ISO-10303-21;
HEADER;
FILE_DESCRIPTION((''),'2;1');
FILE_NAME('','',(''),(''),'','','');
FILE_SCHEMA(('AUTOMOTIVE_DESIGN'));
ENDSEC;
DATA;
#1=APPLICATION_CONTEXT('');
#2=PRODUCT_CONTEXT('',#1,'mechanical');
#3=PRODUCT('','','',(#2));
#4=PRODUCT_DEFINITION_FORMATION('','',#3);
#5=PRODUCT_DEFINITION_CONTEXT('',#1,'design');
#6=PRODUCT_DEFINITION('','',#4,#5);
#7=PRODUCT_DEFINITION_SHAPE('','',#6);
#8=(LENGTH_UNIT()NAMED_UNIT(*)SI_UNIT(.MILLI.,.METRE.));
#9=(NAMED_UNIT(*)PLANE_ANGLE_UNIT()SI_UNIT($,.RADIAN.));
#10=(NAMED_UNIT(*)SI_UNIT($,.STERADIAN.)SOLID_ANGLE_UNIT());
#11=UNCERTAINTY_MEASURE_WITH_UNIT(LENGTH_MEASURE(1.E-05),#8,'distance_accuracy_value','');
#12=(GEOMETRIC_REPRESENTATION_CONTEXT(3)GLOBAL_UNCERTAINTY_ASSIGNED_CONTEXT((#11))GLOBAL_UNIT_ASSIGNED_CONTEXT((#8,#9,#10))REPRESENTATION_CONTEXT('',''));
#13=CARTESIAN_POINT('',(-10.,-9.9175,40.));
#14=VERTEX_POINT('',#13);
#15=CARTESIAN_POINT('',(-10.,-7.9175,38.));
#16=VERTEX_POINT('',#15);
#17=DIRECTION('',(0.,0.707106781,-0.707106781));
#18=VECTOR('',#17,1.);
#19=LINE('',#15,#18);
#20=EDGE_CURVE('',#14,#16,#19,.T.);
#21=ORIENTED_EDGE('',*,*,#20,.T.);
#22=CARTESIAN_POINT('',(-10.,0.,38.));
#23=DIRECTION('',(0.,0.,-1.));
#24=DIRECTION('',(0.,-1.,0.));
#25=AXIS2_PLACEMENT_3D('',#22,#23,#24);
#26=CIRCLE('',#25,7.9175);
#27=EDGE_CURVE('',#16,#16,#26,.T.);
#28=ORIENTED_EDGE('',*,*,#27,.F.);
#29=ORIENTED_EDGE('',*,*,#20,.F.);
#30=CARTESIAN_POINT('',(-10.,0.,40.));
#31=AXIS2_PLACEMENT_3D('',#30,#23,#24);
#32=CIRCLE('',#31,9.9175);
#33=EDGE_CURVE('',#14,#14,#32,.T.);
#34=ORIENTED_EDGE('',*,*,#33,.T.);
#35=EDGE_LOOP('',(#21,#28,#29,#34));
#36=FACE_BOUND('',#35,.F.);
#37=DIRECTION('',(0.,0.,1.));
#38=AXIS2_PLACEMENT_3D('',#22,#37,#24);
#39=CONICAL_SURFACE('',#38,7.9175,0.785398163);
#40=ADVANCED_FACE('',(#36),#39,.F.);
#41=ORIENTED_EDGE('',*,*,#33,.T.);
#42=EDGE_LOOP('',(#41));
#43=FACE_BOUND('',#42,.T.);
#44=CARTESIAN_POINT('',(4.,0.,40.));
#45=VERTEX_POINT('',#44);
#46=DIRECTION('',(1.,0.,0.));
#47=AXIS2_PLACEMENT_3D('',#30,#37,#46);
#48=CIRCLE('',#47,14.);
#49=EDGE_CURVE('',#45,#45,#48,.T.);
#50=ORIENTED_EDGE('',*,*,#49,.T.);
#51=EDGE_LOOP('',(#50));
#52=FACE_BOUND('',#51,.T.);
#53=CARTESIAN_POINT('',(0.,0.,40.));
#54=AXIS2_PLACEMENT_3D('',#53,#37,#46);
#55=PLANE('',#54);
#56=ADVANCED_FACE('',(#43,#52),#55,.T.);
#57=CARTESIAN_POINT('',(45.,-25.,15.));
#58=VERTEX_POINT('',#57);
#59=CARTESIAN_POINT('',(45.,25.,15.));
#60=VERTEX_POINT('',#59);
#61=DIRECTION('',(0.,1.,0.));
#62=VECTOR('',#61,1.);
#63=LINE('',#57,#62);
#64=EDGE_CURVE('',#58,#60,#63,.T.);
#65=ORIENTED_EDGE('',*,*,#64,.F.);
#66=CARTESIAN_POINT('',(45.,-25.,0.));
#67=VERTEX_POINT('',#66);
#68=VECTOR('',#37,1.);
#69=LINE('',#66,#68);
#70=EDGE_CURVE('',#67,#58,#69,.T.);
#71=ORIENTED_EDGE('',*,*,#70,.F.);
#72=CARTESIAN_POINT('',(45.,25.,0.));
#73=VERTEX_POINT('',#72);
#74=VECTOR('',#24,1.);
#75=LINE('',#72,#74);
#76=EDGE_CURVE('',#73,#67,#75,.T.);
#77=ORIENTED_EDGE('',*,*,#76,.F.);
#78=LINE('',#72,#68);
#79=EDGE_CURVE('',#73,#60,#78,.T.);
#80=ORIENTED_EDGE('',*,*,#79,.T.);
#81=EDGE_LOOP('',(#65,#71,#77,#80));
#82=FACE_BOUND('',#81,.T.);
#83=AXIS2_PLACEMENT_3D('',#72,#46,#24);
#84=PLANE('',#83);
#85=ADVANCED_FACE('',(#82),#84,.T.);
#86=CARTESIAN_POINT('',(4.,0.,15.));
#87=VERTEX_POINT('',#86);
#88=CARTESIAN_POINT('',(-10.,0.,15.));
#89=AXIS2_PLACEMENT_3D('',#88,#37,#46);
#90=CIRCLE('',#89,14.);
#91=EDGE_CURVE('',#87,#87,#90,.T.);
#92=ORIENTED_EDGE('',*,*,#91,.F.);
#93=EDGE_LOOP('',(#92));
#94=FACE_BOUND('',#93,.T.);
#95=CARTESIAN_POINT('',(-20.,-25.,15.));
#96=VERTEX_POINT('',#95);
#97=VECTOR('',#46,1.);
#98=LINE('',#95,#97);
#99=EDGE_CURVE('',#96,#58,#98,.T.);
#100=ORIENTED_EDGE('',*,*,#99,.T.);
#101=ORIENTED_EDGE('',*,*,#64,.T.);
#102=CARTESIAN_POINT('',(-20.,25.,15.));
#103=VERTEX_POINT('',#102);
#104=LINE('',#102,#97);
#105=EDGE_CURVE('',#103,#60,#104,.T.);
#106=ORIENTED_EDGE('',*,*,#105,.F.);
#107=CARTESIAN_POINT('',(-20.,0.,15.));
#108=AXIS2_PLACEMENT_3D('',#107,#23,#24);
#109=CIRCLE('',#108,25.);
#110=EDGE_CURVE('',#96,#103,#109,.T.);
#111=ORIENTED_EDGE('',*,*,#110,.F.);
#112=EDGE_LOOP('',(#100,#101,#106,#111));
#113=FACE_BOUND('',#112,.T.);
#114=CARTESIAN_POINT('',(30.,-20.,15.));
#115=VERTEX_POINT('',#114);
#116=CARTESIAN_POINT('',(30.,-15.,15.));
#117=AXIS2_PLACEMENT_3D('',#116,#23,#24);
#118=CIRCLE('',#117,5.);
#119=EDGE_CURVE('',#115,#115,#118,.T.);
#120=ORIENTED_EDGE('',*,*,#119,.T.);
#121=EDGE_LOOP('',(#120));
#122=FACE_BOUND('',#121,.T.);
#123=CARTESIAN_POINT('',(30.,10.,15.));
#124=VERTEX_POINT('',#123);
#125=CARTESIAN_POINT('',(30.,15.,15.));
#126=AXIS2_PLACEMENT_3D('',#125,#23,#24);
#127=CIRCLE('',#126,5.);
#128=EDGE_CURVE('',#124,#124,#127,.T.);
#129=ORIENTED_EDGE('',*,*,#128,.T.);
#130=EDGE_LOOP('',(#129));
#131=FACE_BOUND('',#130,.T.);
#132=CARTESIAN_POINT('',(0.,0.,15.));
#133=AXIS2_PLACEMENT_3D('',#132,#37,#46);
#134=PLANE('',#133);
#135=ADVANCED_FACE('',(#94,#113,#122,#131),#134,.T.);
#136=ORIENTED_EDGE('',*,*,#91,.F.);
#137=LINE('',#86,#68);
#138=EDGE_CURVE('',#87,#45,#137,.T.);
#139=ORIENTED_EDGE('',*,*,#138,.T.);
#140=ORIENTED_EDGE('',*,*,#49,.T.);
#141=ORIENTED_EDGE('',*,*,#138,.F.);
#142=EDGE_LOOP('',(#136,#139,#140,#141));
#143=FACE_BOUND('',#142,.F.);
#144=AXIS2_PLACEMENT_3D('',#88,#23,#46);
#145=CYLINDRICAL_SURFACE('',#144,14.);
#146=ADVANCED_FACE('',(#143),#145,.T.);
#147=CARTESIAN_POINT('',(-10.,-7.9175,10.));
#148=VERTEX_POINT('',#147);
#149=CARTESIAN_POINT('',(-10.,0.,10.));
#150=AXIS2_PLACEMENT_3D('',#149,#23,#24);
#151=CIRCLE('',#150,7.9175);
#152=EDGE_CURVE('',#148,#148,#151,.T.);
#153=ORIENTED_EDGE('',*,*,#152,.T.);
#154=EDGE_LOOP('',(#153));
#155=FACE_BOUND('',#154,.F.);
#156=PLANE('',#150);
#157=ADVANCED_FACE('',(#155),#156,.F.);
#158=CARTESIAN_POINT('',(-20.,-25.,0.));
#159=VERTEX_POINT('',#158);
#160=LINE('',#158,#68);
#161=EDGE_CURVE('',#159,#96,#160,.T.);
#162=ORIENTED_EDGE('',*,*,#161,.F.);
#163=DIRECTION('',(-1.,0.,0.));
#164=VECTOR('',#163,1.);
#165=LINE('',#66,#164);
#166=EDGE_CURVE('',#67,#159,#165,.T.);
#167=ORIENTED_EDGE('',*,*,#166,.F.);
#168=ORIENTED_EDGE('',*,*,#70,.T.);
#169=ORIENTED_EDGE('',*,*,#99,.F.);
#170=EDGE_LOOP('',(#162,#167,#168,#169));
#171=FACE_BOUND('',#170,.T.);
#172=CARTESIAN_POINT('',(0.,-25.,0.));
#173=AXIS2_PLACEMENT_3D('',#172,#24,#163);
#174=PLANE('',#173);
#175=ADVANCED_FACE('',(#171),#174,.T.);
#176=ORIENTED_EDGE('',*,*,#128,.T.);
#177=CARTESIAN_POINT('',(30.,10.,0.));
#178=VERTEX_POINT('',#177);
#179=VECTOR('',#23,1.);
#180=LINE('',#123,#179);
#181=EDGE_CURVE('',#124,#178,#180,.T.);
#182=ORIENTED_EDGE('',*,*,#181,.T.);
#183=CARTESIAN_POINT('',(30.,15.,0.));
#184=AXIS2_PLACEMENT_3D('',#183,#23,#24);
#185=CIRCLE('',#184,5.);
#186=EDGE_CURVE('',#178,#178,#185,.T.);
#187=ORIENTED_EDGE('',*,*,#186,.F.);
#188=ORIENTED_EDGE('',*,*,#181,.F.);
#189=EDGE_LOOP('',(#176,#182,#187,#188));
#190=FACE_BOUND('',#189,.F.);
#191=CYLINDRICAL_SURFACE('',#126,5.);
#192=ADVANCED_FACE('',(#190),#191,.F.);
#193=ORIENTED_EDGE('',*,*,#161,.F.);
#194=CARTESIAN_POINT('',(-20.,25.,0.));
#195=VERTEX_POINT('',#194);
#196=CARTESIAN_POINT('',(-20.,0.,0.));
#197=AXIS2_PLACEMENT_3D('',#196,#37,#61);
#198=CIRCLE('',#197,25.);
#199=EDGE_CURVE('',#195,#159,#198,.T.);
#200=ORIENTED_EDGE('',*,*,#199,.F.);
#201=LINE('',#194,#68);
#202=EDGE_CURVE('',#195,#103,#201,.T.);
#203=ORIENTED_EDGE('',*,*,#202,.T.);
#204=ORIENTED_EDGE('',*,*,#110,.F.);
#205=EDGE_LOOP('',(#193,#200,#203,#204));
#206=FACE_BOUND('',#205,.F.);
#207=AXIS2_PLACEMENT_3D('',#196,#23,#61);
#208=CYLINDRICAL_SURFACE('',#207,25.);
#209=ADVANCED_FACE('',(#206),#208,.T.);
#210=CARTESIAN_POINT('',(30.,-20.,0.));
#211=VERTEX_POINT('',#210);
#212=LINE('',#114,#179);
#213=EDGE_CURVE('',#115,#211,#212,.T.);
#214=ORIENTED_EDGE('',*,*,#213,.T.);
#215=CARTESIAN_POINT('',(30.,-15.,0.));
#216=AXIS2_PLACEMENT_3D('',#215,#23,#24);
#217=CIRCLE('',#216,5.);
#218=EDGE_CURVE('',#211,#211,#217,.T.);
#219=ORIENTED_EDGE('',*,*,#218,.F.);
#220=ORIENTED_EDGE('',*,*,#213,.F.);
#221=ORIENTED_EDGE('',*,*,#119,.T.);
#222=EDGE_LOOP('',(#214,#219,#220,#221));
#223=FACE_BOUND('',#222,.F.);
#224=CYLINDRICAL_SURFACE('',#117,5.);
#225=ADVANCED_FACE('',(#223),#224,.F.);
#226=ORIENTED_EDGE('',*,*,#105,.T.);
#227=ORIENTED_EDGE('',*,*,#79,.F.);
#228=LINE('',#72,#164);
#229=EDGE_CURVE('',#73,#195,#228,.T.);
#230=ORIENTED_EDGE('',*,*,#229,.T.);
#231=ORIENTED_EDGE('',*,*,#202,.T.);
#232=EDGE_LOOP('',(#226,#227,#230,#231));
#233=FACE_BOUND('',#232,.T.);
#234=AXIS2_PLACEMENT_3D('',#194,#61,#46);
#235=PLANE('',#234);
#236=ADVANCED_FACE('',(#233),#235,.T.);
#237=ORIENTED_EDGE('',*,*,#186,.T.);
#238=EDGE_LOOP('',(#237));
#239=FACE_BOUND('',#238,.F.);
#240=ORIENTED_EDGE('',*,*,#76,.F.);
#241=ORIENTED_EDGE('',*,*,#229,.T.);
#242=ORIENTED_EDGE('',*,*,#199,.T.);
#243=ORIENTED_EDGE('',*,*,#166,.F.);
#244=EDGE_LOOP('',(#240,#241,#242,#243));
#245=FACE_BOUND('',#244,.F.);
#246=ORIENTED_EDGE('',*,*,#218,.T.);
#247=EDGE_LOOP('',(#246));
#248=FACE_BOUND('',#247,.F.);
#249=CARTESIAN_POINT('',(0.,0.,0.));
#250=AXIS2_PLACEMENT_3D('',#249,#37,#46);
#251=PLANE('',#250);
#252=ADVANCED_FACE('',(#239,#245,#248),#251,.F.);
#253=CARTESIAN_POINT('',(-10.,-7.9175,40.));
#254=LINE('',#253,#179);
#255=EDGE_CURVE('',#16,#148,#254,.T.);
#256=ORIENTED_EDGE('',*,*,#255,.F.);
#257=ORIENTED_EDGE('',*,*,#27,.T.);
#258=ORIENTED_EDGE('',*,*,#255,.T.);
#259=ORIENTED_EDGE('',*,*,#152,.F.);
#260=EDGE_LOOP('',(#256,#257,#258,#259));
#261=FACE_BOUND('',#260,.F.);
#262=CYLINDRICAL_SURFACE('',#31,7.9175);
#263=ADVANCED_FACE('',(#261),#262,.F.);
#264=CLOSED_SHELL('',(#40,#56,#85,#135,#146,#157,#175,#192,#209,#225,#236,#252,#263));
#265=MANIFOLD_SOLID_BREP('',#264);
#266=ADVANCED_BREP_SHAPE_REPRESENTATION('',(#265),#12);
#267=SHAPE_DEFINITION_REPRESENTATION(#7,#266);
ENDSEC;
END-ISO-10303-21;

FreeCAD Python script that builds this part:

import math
import FreeCAD as App
import Part
import Sketcher
from FreeCAD import Vector


def edges_at(feature, points):
    """Names of the edges that pass closest to the given points."""
    edges = feature.Shape.Edges
    near = lambda p: min(range(len(edges)), key=lambda i: edges[i].distToShape(Part.Vertex(*p))[0])
    return sorted({f"Edge{near(p) + 1}" for p in points})

doc = App.newDocument("Part")
body = doc.addObject("PartDesign::Body", "Body")

# Sketch on XY plane
sketch1 = doc.addObject("Sketcher::SketchObject", "Sketch")
body.addObject(sketch1)
sketch1.AttachmentSupport = (doc.XY_Plane, [""])
sketch1.MapMode = "FlatFace"
sketch1.addGeometry([
    Part.ArcOfCircle(Part.Circle(Vector(-20, 0, 0), Vector(0, 0, 1), 25), math.radians(90), math.radians(270)),
    Part.LineSegment(Vector(-20, -25, 0), Vector(45, -25, 0)),
    Part.LineSegment(Vector(45, -25, 0), Vector(45, 25, 0)),
    Part.LineSegment(Vector(45, 25, 0), Vector(-20, 25, 0)),
], False)
sketch1.addConstraint([
    Sketcher.Constraint("Tangent", 0, 2, 1, 1),
    Sketcher.Constraint("Coincident", 1, 2, 2, 1),
    Sketcher.Constraint("Coincident", 2, 2, 3, 1),
    Sketcher.Constraint("Tangent", 3, 2, 0, 1),
    Sketcher.Constraint("Horizontal", 1),
    Sketcher.Constraint("Vertical", 2),
    Sketcher.Constraint("Horizontal", 3),
    Sketcher.Constraint("PointOnObject", 0, 3, -1),
    Sketcher.Constraint("Radius", 0, 25.0),
    Sketcher.Constraint("DistanceX", 1, 1, 1, 2, 65.0),
    Sketcher.Constraint("DistanceX", 0, 3, -1, 1, 20.0),
])
pad1 = doc.addObject("PartDesign::Pad", "Pad")
body.addObject(pad1)
pad1.Profile = sketch1
pad1.Length = 15

# Sketch on XY plane
sketch2 = doc.addObject("Sketcher::SketchObject", "Sketch001")
body.addObject(sketch2)
sketch2.AttachmentSupport = (doc.XY_Plane, [""])
sketch2.MapMode = "FlatFace"
sketch2.AttachmentOffset = App.Placement(Vector(0, 0, 15), App.Rotation())
sketch2.addGeometry(Part.Circle(Vector(-10, 0, 0), Vector(0, 0, 1), 14), False)
sketch2.addConstraint([
    Sketcher.Constraint("PointOnObject", 0, 3, -1),
    Sketcher.Constraint("Diameter", 0, 28.0),
    Sketcher.Constraint("DistanceX", 0, 3, -1, 1, 10.0),
])
pad2 = doc.addObject("PartDesign::Pad", "Pad001")
body.addObject(pad2)
pad2.Profile = sketch2
pad2.Length = 25

# Sketch on XY plane
sketch3 = doc.addObject("Sketcher::SketchObject", "Sketch002")
body.addObject(sketch3)
sketch3.AttachmentSupport = (doc.XY_Plane, [""])
sketch3.MapMode = "FlatFace"
sketch3.AttachmentOffset = App.Placement(Vector(0, 0, 40), App.Rotation())
sketch3.addGeometry(Part.Circle(Vector(-10, 0, 0), Vector(0, 0, 1), 8), False)
sketch3.addConstraint([
    Sketcher.Constraint("PointOnObject", 0, 3, -1),
    Sketcher.Constraint("Diameter", 0, 15.835),
    Sketcher.Constraint("DistanceX", 0, 3, -1, 1, 10.0),
])
doc.recompute()
hole = doc.addObject("PartDesign::Hole", "Hole")
body.addObject(hole)
hole.Profile = sketch3
hole.ThreadType = "None"
hole.Diameter = 15.835
hole.DepthType = "Dimension"
hole.Depth = 30
hole.DrillPoint = "Flat"
doc.recompute()

chamfer = doc.addObject("PartDesign::Chamfer", "Chamfer")
body.addObject(chamfer)
chamfer.Base = (hole, edges_at(hole, [(-10, 7.918, 40)]))
chamfer.Size = 2

# Sketch on XY plane
sketch4 = doc.addObject("Sketcher::SketchObject", "Sketch003")
body.addObject(sketch4)
sketch4.AttachmentSupport = (doc.XY_Plane, [""])
sketch4.MapMode = "FlatFace"
sketch4.AttachmentOffset = App.Placement(Vector(0, 0, 15), App.Rotation())
sketch4.addGeometry([
    Part.Circle(Vector(30, 15, 0), Vector(0, 0, 1), 5),
    Part.Circle(Vector(30, -15, 0), Vector(0, 0, 1), 5),
], False)
sketch4.addConstraint([
    Sketcher.Constraint("Equal", 0, 1),
    Sketcher.Constraint("Symmetric", 0, 3, 1, 3, -1),
    Sketcher.Constraint("Diameter", 0, 10.0),
    Sketcher.Constraint("DistanceX", -1, 1, 0, 3, 30.0),
    Sketcher.Constraint("DistanceY", -1, 1, 0, 3, 15.0),
])
doc.recompute()
hole2 = doc.addObject("PartDesign::Hole", "Hole001")
body.addObject(hole2)
hole2.Profile = sketch4
hole2.ThreadType = "None"
hole2.Diameter = 10
hole2.DepthType = "ThroughAll"

doc.recompute()
